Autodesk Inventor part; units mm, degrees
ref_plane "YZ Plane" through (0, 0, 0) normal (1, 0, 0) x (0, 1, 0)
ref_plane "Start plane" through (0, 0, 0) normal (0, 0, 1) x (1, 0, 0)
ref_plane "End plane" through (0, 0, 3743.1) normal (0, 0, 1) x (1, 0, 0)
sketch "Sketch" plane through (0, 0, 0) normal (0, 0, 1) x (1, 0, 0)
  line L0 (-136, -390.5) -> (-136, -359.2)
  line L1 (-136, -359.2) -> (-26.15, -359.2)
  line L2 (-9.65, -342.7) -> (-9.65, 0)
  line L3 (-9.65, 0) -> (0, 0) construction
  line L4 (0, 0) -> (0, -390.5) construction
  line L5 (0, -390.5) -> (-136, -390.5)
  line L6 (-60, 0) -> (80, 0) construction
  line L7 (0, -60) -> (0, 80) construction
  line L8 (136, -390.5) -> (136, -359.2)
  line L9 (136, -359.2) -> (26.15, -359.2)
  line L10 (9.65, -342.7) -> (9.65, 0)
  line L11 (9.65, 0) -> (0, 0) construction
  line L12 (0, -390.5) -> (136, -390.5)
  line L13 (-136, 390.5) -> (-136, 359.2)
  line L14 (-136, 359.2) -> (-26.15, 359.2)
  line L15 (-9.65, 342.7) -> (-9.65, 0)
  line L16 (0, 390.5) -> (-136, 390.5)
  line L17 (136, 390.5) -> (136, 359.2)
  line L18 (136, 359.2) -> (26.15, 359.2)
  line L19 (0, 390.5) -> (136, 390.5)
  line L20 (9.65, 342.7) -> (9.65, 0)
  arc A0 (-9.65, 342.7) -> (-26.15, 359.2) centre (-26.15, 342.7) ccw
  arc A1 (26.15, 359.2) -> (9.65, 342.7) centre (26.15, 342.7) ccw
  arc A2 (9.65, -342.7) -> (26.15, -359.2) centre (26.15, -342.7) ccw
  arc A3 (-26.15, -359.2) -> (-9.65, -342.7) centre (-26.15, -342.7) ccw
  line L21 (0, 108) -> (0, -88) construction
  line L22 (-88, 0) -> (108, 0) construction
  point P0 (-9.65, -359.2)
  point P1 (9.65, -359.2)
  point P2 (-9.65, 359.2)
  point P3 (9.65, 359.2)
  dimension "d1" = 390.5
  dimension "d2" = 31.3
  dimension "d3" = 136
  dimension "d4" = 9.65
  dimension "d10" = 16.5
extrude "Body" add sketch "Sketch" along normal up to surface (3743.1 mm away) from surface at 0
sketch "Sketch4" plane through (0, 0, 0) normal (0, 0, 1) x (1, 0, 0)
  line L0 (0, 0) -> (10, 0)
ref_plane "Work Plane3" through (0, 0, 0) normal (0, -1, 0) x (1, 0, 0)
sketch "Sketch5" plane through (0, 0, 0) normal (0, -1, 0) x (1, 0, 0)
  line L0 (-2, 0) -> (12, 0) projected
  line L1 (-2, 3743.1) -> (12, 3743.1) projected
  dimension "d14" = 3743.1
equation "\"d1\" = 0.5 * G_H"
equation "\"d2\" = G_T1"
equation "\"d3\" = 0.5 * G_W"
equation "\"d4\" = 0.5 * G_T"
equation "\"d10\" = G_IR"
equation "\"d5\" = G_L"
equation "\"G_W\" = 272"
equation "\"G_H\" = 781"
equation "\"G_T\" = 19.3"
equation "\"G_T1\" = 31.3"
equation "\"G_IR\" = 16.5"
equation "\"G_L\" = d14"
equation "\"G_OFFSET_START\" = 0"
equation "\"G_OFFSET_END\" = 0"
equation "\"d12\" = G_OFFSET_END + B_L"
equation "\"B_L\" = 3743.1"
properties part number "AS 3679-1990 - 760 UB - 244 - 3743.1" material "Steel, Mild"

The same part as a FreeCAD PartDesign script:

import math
import FreeCAD as App
import Part
import Sketcher
Q = App.Units.Quantity

doc = App.newDocument("Part")
body = doc.addObject("PartDesign::Body", "Body")

# Sketch on XY plane
sketch1 = body.newObject("Sketcher::SketchObject", "Sketch")
sketch1.AttachmentSupport = (doc.getObject("XY_Plane"), [""])
sketch1.MapMode = "FlatFace"
sketch1.addGeometry([
    Part.LineSegment(App.Vector(-136, -359, 0), App.Vector(-136, -390, 0)),  # 0
    Part.LineSegment(App.Vector(-136, -390, 0), App.Vector(136, -390, 0)),  # 1
    Part.LineSegment(App.Vector(136, -390, 0), App.Vector(136, -359, 0)),  # 2
    Part.LineSegment(App.Vector(136, -359, 0), App.Vector(26, -359, 0)),  # 3
    Part.ArcOfCircle(Part.Circle(App.Vector(26, -343, 0), App.Vector(0, 0, 1), 16), math.radians(180), math.radians(270)),  # 4
    Part.LineSegment(App.Vector(10, -343, 0), App.Vector(10, 343, 0)),  # 5
    Part.ArcOfCircle(Part.Circle(App.Vector(26, 343, 0), App.Vector(0, 0, 1), 16), math.radians(90), math.radians(180)),  # 6
    Part.LineSegment(App.Vector(26, 359, 0), App.Vector(136, 359, 0)),  # 7
    Part.LineSegment(App.Vector(136, 359, 0), App.Vector(136, 390, 0)),  # 8
    Part.LineSegment(App.Vector(136, 390, 0), App.Vector(-136, 390, 0)),  # 9
    Part.LineSegment(App.Vector(-136, 390, 0), App.Vector(-136, 359, 0)),  # 10
    Part.LineSegment(App.Vector(-136, 359, 0), App.Vector(-26, 359, 0)),  # 11
    Part.ArcOfCircle(Part.Circle(App.Vector(-26, 343, 0), App.Vector(0, 0, 1), 16), math.radians(0), math.radians(90)),  # 12
    Part.LineSegment(App.Vector(-10, 343, 0), App.Vector(-10, -343, 0)),  # 13
    Part.ArcOfCircle(Part.Circle(App.Vector(-26, -343, 0), App.Vector(0, 0, 1), 16), math.radians(-90), math.radians(0)),  # 14
    Part.LineSegment(App.Vector(-26, -359, 0), App.Vector(-136, -359, 0)),  # 15
], False)
sketch1.addConstraint([
    Sketcher.Constraint("Coincident", 0, 2, 1, 1),
    Sketcher.Constraint("Coincident", 1, 2, 2, 1),
    Sketcher.Constraint("Coincident", 2, 2, 3, 1),
    Sketcher.Constraint("Tangent", 3, 2, 4, 2),
    Sketcher.Constraint("Tangent", 4, 1, 5, 1),
    Sketcher.Constraint("Tangent", 5, 2, 6, 2),
    Sketcher.Constraint("Tangent", 6, 1, 7, 1),
    Sketcher.Constraint("Coincident", 7, 2, 8, 1),
    Sketcher.Constraint("Coincident", 8, 2, 9, 1),
    Sketcher.Constraint("Coincident", 9, 2, 10, 1),
    Sketcher.Constraint("Coincident", 10, 2, 11, 1),
    Sketcher.Constraint("Tangent", 11, 2, 12, 2),
    Sketcher.Constraint("Tangent", 12, 1, 13, 1),
    Sketcher.Constraint("Tangent", 13, 2, 14, 2),
    Sketcher.Constraint("Tangent", 14, 1, 15, 1),
    Sketcher.Constraint("Coincident", 15, 2, 0, 1),
    Sketcher.Constraint("Vertical", 0),
    Sketcher.Constraint("Horizontal", 1),
    Sketcher.Constraint("Vertical", 2),
    Sketcher.Constraint("Horizontal", 3),
    Sketcher.Constraint("Vertical", 5),
    Sketcher.Constraint("Horizontal", 7),
    Sketcher.Constraint("Vertical", 8),
    Sketcher.Constraint("Horizontal", 9),
    Sketcher.Constraint("Vertical", 10),
    Sketcher.Constraint("Horizontal", 11),
    Sketcher.Constraint("Vertical", 13),
    Sketcher.Constraint("Horizontal", 15),
    Sketcher.Constraint("Equal", 4, 6),
    Sketcher.Constraint("Equal", 6, 12),
    Sketcher.Constraint("Equal", 12, 14),
    Sketcher.Constraint("Symmetric", 4, 3, 12, 3, -1, 1),
    Sketcher.Constraint("Symmetric", 0, 2, 8, 2, -1, 1),
    Sketcher.Constraint("Symmetric", 7, 2, 10, 2, -2),
    Sketcher.Constraint("Symmetric", 2, 2, 15, 2, -2),
    Sketcher.Constraint("Radius", 4, Q("16.5 mm")),
    Sketcher.Constraint("DistanceY", 0, 2, 0, 1, Q("31.3 mm")),
    Sketcher.Constraint("DistanceX", 0, 2, -1, 1, Q("136 mm")),
    Sketcher.Constraint("DistanceY", 0, 2, -1, 1, Q("390.5 mm")),
    Sketcher.Constraint("DistanceX", -1, 1, 4, 1, Q("9.65 mm")),
])
pad1 = body.newObject("PartDesign::Pad", "Pad")
pad1.Profile = sketch1
pad1.Length = 3743.1

doc.recompute()
